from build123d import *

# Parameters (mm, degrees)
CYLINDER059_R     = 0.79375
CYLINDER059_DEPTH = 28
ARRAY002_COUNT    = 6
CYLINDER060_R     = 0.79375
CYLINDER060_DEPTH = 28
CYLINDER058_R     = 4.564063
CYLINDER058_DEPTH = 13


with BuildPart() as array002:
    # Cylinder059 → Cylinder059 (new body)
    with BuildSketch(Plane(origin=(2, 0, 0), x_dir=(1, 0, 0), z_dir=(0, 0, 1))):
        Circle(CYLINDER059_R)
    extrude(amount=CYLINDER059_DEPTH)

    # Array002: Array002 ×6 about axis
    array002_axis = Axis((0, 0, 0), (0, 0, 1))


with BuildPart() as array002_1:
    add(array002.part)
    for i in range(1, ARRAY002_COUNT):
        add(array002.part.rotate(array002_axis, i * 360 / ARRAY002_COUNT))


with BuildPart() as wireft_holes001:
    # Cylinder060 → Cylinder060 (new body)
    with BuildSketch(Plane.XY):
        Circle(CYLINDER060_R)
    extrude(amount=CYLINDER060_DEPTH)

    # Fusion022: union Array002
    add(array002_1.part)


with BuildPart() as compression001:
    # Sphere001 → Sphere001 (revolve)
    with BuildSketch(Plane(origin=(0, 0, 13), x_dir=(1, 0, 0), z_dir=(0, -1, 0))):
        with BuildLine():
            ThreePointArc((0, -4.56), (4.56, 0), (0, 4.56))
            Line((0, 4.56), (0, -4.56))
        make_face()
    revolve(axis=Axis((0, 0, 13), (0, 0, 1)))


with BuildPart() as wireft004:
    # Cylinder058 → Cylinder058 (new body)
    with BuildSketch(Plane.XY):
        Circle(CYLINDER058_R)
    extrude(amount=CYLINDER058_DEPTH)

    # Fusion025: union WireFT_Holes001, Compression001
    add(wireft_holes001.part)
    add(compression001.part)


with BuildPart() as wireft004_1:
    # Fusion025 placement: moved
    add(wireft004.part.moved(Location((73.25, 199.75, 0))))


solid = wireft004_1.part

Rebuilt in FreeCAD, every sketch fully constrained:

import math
import FreeCAD as App
import Part
import Sketcher

doc = App.newDocument("Part")
body = doc.addObject("PartDesign::Body", "Body")

# Sketch on XY plane
sketch1 = doc.addObject("Sketcher::SketchObject", "Sketch")
body.addObject(sketch1)
sketch1.AttachmentSupport = (doc.XY_Plane, [""])
sketch1.MapMode = "FlatFace"
sketch1.addGeometry(Part.Circle(App.Vector(2, 0, 0), App.Vector(0, 0, 1), 0.8), False)
sketch1.addConstraint(Sketcher.Constraint("PointOnObject", 0, 3, -1))
sketch1.addConstraint(Sketcher.Constraint("DistanceX", -1, 1, 0, 3, 2.0))
sketch1.addConstraint(Sketcher.Constraint("Diameter", 0, 1.5875))
pad1 = doc.addObject("PartDesign::Pad", "Pad")
body.addObject(pad1)
pad1.Profile = sketch1
pad1.Length = 28
body2 = doc.addObject("PartDesign::Body", "Body001")
body2.AllowCompound = True
doc.recompute()

body2.BaseFeature = body
doc.recompute()

body3 = doc.addObject("PartDesign::Body", "Body002")
body3.BaseFeature = body
body3.Placement = App.Placement(App.Vector(0, 0, 0), App.Rotation(App.Vector(0, 0, 1), 60))
boolean = doc.addObject("PartDesign::Boolean", "Boolean")
body2.addObject(boolean)
boolean.Type = "Fuse"
boolean.addObjects([body3])
doc.recompute()

body4 = doc.addObject("PartDesign::Body", "Body003")
body4.BaseFeature = body
body4.Placement = App.Placement(App.Vector(0, 0, 0), App.Rotation(App.Vector(0, 0, 1), 120))
boolean2 = doc.addObject("PartDesign::Boolean", "Boolean001")
body2.addObject(boolean2)
boolean2.Type = "Fuse"
boolean2.addObjects([body4])
doc.recompute()

body5 = doc.addObject("PartDesign::Body", "Body004")
body5.BaseFeature = body
body5.Placement = App.Placement(App.Vector(0, 0, 0), App.Rotation(App.Vector(0, 0, 1), 180))
boolean3 = doc.addObject("PartDesign::Boolean", "Boolean002")
body2.addObject(boolean3)
boolean3.Type = "Fuse"
boolean3.addObjects([body5])
doc.recompute()

body6 = doc.addObject("PartDesign::Body", "Body005")
body6.BaseFeature = body
body6.Placement = App.Placement(App.Vector(0, 0, 0), App.Rotation(App.Vector(0, 0, 1), 240))
boolean4 = doc.addObject("PartDesign::Boolean", "Boolean003")
body2.addObject(boolean4)
boolean4.Type = "Fuse"
boolean4.addObjects([body6])
doc.recompute()

body.Placement = App.Placement(App.Vector(0, 0, 0), App.Rotation(App.Vector(0, 0, 1), 300))
boolean5 = doc.addObject("PartDesign::Boolean", "Boolean004")
body2.addObject(boolean5)
boolean5.Type = "Fuse"
boolean5.addObjects([body])
body7 = doc.addObject("PartDesign::Body", "Body006")
body7.AllowCompound = True

# Sketch on XY plane
sketch2 = doc.addObject("Sketcher::SketchObject", "Sketch001")
body7.addObject(sketch2)
sketch2.AttachmentSupport = (doc.getObject("XY_Plane006"), [""])
sketch2.MapMode = "FlatFace"
sketch2.addGeometry(Part.Circle(App.Vector(0, 0, 0), App.Vector(0, 0, 1), 0.8), False)
sketch2.addConstraint(Sketcher.Constraint("Coincident", 0, 3, -1, 1))
sketch2.addConstraint(Sketcher.Constraint("Diameter", 0, 1.5875))
pad2 = doc.addObject("PartDesign::Pad", "Pad001")
body7.addObject(pad2)
pad2.Profile = sketch2
pad2.Length = 28
doc.recompute()

boolean6 = doc.addObject("PartDesign::Boolean", "Boolean005")
body7.addObject(boolean6)
boolean6.Type = "Fuse"
boolean6.addObjects([body2])
body8 = doc.addObject("PartDesign::Body", "Body007")

# Sketch on XZ plane
sketch3 = doc.addObject("Sketcher::SketchObject", "Sketch002")
body8.addObject(sketch3)
sketch3.AttachmentSupport = (doc.getObject("XZ_Plane007"), [""])
sketch3.MapMode = "FlatFace"
sketch3.addGeometry(Part.ArcOfCircle(Part.Circle(App.Vector(0, 13, 0), App.Vector(0, 0, 1), 4.6), math.radians(-90), math.radians(90)), False)
sketch3.addGeometry(Part.LineSegment(App.Vector(0, 17.6, 0), App.Vector(0, 8.4, 0)), False)
sketch3.addConstraint(Sketcher.Constraint("Coincident", 0, 1, 1, 2))
sketch3.addConstraint(Sketcher.Constraint("Coincident", 1, 1, 0, 2))
sketch3.addConstraint(Sketcher.Constraint("Vertical", 1))
sketch3.addConstraint(Sketcher.Constraint("PointOnObject", 0, 3, -2))
sketch3.addConstraint(Sketcher.Constraint("PointOnObject", 0, 1, -2))
sketch3.addConstraint(Sketcher.Constraint("Radius", 0, 4.56))
sketch3.addConstraint(Sketcher.Constraint("DistanceY", -1, 1, 0, 3, 13.0))
revolution = doc.addObject("PartDesign::Revolution", "Revolution")
body8.addObject(revolution)
revolution.Profile = sketch3
revolution.ReferenceAxis = (sketch3, ["V_Axis"])
revolution.Angle = 360
body9 = doc.addObject("PartDesign::Body", "Body008")

# Sketch on XY plane
sketch4 = doc.addObject("Sketcher::SketchObject", "Sketch003")
body9.addObject(sketch4)
sketch4.AttachmentSupport = (doc.getObject("XY_Plane008"), [""])
sketch4.MapMode = "FlatFace"
sketch4.addGeometry(Part.Circle(App.Vector(0, 0, 0), App.Vector(0, 0, 1), 4.6), False)
sketch4.addConstraint(Sketcher.Constraint("Coincident", 0, 3, -1, 1))
sketch4.addConstraint(Sketcher.Constraint("Diameter", 0, 9.128126))
pad3 = doc.addObject("PartDesign::Pad", "Pad002")
body9.addObject(pad3)
pad3.Profile = sketch4
pad3.Length = 13
doc.recompute()

boolean7 = doc.addObject("PartDesign::Boolean", "Boolean006")
body9.addObject(boolean7)
boolean7.Type = "Fuse"
boolean7.addObjects([body7])
doc.recompute()

boolean8 = doc.addObject("PartDesign::Boolean", "Boolean007")
body9.addObject(boolean8)
boolean8.Type = "Fuse"
boolean8.addObjects([body8])
body10 = doc.addObject("PartDesign::Body", "Body009")
doc.recompute()

body9.Placement = App.Placement(App.Vector(73.25, 199.75, 0), App.Rotation(App.Vector(0, 0, 1), 0))
boolean9 = doc.addObject("PartDesign::Boolean", "Boolean008")
body10.addObject(boolean9)
boolean9.Type = "Fuse"
boolean9.addObjects([body9])

doc.recompute()
